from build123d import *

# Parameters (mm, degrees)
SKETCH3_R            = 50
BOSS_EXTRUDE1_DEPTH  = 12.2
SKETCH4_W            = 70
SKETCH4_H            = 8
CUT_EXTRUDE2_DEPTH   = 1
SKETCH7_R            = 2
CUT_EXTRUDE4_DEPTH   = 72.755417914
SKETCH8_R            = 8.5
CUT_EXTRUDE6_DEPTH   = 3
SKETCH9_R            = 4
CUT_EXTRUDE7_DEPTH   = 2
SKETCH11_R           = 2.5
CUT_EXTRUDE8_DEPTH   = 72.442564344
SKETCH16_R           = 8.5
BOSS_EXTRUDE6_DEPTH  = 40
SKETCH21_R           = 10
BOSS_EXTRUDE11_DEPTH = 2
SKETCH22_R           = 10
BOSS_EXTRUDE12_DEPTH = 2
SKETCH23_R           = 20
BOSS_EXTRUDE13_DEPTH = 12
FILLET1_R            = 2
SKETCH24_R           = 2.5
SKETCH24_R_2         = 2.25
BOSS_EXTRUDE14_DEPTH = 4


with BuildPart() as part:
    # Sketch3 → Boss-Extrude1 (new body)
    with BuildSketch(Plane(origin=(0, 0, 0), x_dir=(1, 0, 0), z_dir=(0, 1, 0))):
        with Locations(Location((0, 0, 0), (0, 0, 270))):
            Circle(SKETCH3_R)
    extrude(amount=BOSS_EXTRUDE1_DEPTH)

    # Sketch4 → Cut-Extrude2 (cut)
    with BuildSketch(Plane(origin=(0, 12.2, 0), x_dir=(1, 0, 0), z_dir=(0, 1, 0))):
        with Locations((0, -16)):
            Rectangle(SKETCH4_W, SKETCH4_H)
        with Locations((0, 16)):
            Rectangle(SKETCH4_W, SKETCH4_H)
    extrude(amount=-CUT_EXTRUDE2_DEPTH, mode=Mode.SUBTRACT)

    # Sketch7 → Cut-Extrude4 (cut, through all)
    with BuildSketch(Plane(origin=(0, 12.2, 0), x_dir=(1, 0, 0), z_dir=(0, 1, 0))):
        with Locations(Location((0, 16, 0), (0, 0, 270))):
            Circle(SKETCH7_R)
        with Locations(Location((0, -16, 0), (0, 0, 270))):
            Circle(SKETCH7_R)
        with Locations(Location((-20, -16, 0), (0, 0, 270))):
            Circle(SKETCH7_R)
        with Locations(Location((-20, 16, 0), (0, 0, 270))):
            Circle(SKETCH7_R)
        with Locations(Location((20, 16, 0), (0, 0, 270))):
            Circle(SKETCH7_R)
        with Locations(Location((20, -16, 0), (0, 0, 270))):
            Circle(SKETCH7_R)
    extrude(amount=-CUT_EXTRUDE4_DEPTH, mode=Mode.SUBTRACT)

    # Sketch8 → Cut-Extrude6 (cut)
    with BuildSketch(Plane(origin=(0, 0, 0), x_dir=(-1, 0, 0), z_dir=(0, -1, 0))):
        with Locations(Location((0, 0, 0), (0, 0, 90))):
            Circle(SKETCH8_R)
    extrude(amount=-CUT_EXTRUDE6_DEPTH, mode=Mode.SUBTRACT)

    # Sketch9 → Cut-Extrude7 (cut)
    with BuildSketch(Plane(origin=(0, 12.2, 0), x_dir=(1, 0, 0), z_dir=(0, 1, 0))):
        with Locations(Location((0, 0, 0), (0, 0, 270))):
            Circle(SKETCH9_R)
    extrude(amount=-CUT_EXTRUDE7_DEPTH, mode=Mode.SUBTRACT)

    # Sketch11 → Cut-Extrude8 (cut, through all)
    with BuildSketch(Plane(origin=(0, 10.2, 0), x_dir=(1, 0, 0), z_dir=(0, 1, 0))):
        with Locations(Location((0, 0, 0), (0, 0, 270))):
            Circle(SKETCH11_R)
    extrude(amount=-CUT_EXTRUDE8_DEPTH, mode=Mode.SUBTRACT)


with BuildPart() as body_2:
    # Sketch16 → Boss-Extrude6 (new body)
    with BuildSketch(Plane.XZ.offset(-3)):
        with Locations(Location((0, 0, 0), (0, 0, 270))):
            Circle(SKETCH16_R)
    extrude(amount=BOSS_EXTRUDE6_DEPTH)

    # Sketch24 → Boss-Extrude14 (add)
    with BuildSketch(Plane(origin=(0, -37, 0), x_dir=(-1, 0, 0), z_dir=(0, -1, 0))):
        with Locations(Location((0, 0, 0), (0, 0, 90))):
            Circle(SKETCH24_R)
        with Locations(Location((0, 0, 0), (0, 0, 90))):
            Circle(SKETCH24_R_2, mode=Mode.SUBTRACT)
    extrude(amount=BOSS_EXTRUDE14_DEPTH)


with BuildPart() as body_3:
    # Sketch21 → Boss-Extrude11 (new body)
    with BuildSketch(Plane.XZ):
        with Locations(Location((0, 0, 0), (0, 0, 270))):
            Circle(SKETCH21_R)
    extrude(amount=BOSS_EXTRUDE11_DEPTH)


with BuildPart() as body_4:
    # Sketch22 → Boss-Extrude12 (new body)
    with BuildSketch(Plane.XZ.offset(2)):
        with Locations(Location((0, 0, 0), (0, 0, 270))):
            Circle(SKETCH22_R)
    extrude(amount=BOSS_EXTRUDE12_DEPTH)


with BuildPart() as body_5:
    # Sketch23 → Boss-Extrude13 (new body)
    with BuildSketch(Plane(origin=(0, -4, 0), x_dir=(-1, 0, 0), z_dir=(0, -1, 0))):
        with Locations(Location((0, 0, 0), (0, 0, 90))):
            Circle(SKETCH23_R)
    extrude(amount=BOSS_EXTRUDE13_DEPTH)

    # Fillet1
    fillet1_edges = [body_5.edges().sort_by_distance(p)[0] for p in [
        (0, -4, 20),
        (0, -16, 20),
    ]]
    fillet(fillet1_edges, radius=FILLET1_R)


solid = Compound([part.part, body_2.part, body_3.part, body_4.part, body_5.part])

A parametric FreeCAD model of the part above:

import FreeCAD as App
import Part
import Sketcher


def edges_at(feature, points):
    """Names of the edges that pass closest to the given points."""
    edges = feature.Shape.Edges
    near = lambda p: min(range(len(edges)), key=lambda i: edges[i].distToShape(Part.Vertex(*p))[0])
    return sorted({f"Edge{near(p) + 1}" for p in points})

doc = App.newDocument("Part")
body = doc.addObject("PartDesign::Body", "Body")

sketch1 = body.newObject("Sketcher::SketchObject", "Sketch")
sketch1.AttachmentSupport = (doc.getObject("XZ_Plane"), [""])
sketch1.MapMode = "FlatFace"
sketch1.addGeometry(Part.Circle(App.Vector(0, 0, 0), App.Vector(0, 0, 1), 50), False)
sketch1.addConstraint(Sketcher.Constraint("Coincident", 0, 3, -1, 1))
sketch1.addConstraint(Sketcher.Constraint("Diameter", 0, 100.0))
pad1 = body.newObject("PartDesign::Pad", "Pad")
pad1.Profile = sketch1
pad1.Length = 12.2
pad1.Reversed = True

sketch2 = body.newObject("Sketcher::SketchObject", "Sketch001")
sketch2.AttachmentSupport = (doc.getObject("XZ_Plane"), [""])
sketch2.MapMode = "FlatFace"
sketch2.AttachmentOffset = App.Placement(App.Vector(0, 0, -12.2), App.Rotation())
sketch2.addGeometry(Part.LineSegment(App.Vector(-35, 12, 0), App.Vector(-35, 20, 0)), False)
sketch2.addGeometry(Part.LineSegment(App.Vector(-35, 20, 0), App.Vector(35, 20, 0)), False)
sketch2.addGeometry(Part.LineSegment(App.Vector(35, 20, 0), App.Vector(35, 12, 0)), False)
sketch2.addGeometry(Part.LineSegment(App.Vector(35, 12, 0), App.Vector(-35, 12, 0)), False)
sketch2.addGeometry(Part.LineSegment(App.Vector(-35, -20, 0), App.Vector(-35, -12, 0)), False)
sketch2.addGeometry(Part.LineSegment(App.Vector(-35, -12, 0), App.Vector(35, -12, 0)), False)
sketch2.addGeometry(Part.LineSegment(App.Vector(35, -12, 0), App.Vector(35, -20, 0)), False)
sketch2.addGeometry(Part.LineSegment(App.Vector(35, -20, 0), App.Vector(-35, -20, 0)), False)
sketch2.addConstraint(Sketcher.Constraint("Coincident", 0, 2, 1, 1))
sketch2.addConstraint(Sketcher.Constraint("Coincident", 1, 2, 2, 1))
sketch2.addConstraint(Sketcher.Constraint("Coincident", 2, 2, 3, 1))
sketch2.addConstraint(Sketcher.Constraint("Coincident", 3, 2, 0, 1))
sketch2.addConstraint(Sketcher.Constraint("Coincident", 4, 2, 5, 1))
sketch2.addConstraint(Sketcher.Constraint("Coincident", 5, 2, 6, 1))
sketch2.addConstraint(Sketcher.Constraint("Coincident", 6, 2, 7, 1))
sketch2.addConstraint(Sketcher.Constraint("Coincident", 7, 2, 4, 1))
sketch2.addConstraint(Sketcher.Constraint("Vertical", 0))
sketch2.addConstraint(Sketcher.Constraint("Horizontal", 1))
sketch2.addConstraint(Sketcher.Constraint("Vertical", 2))
sketch2.addConstraint(Sketcher.Constraint("Horizontal", 3))
sketch2.addConstraint(Sketcher.Constraint("Vertical", 4))
sketch2.addConstraint(Sketcher.Constraint("Horizontal", 5))
sketch2.addConstraint(Sketcher.Constraint("Vertical", 6))
sketch2.addConstraint(Sketcher.Constraint("Horizontal", 7))
sketch2.addConstraint(Sketcher.Constraint("Symmetric", 2, 2, 4, 2, -1, 1))
sketch2.addConstraint(Sketcher.Constraint("Symmetric", 0, 2, 6, 2, -1, 1))
sketch2.addConstraint(Sketcher.Constraint("Vertical", 3, 2, 4, 2))
sketch2.addConstraint(Sketcher.Constraint("DistanceX", 1, 1, 1, 2, 70.0))
sketch2.addConstraint(Sketcher.Constraint("DistanceY", 0, 1, 0, 2, 8.0))
sketch2.addConstraint(Sketcher.Constraint("DistanceY", -1, 1, 0, 2, 20.0))
pocket1 = body.newObject("PartDesign::Pocket", "Pocket")
pocket1.Profile = sketch2
pocket1.Length = 1
pocket1.Reversed = True

sketch3 = body.newObject("Sketcher::SketchObject", "Sketch002")
sketch3.AttachmentSupport = (doc.getObject("XZ_Plane"), [""])
sketch3.MapMode = "FlatFace"
sketch3.AttachmentOffset = App.Placement(App.Vector(0, 0, -12.2), App.Rotation())
sketch3.addGeometry(Part.Circle(App.Vector(0, -16, 0), App.Vector(0, 0, 1), 2), False)
sketch3.addGeometry(Part.Circle(App.Vector(0, 16, 0), App.Vector(0, 0, 1), 2), False)
sketch3.addGeometry(Part.Circle(App.Vector(-20, 16, 0), App.Vector(0, 0, 1), 2), False)
sketch3.addGeometry(Part.Circle(App.Vector(-20, -16, 0), App.Vector(0, 0, 1), 2), False)
sketch3.addGeometry(Part.Circle(App.Vector(20, -16, 0), App.Vector(0, 0, 1), 2), False)
sketch3.addGeometry(Part.Circle(App.Vector(20, 16, 0), App.Vector(0, 0, 1), 2), False)
sketch3.addConstraint(Sketcher.Constraint("Equal", 0, 1))
sketch3.addConstraint(Sketcher.Constraint("Equal", 1, 2))
sketch3.addConstraint(Sketcher.Constraint("Equal", 2, 3))
sketch3.addConstraint(Sketcher.Constraint("Equal", 3, 4))
sketch3.addConstraint(Sketcher.Constraint("Equal", 4, 5))
sketch3.addConstraint(Sketcher.Constraint("Symmetric", 0, 3, 1, 3, -1, 1))
sketch3.addConstraint(Sketcher.Constraint("Symmetric", 2, 3, 4, 3, -1, 1))
sketch3.addConstraint(Sketcher.Constraint("Symmetric", 3, 3, 5, 3, -1, 1))
sketch3.addConstraint(Sketcher.Constraint("Symmetric", 3, 3, 4, 3, -2))
sketch3.addConstraint(Sketcher.Constraint("PointOnObject", 0, 3, -2))
sketch3.addConstraint(Sketcher.Constraint("Horizontal", 1, 3, 2, 3))
sketch3.addConstraint(Sketcher.Constraint("Diameter", 0, 4.0))
sketch3.addConstraint(Sketcher.Constraint("DistanceY", 0, 3, -1, 1, 16.0))
sketch3.addConstraint(Sketcher.Constraint("DistanceX", 2, 3, -1, 1, 20.0))
pocket2 = body.newObject("PartDesign::Pocket", "Pocket001")
pocket2.Profile = sketch3
pocket2.Type = "ThroughAll"
pocket2.Reversed = True

sketch4 = body.newObject("Sketcher::SketchObject", "Sketch003")
sketch4.AttachmentSupport = (doc.getObject("XZ_Plane"), [""])
sketch4.MapMode = "FlatFace"
sketch4.addGeometry(Part.Circle(App.Vector(0, 0, 0), App.Vector(0, 0, 1), 8.5), False)
sketch4.addConstraint(Sketcher.Constraint("Coincident", 0, 3, -1, 1))
sketch4.addConstraint(Sketcher.Constraint("Diameter", 0, 17.0))
pocket3 = body.newObject("PartDesign::Pocket", "Pocket002")
pocket3.Profile = sketch4
pocket3.Length = 3

sketch5 = body.newObject("Sketcher::SketchObject", "Sketch004")
sketch5.AttachmentSupport = (doc.getObject("XZ_Plane"), [""])
sketch5.MapMode = "FlatFace"
sketch5.AttachmentOffset = App.Placement(App.Vector(0, 0, -12.2), App.Rotation())
sketch5.addGeometry(Part.Circle(App.Vector(0, 0, 0), App.Vector(0, 0, 1), 4), False)
sketch5.addConstraint(Sketcher.Constraint("Coincident", 0, 3, -1, 1))
sketch5.addConstraint(Sketcher.Constraint("Diameter", 0, 8.0))
pocket4 = body.newObject("PartDesign::Pocket", "Pocket003")
pocket4.Profile = sketch5
pocket4.Length = 2
pocket4.Reversed = True

sketch6 = body.newObject("Sketcher::SketchObject", "Sketch005")
sketch6.AttachmentSupport = (doc.getObject("XZ_Plane"), [""])
sketch6.MapMode = "FlatFace"
sketch6.AttachmentOffset = App.Placement(App.Vector(0, 0, -10.2), App.Rotation())
sketch6.addGeometry(Part.Circle(App.Vector(0, 0, 0), App.Vector(0, 0, 1), 2.5), False)
sketch6.addConstraint(Sketcher.Constraint("Coincident", 0, 3, -1, 1))
sketch6.addConstraint(Sketcher.Constraint("Diameter", 0, 5.0))
pocket5 = body.newObject("PartDesign::Pocket", "Pocket004")
pocket5.Profile = sketch6
pocket5.Type = "ThroughAll"
pocket5.Reversed = True
body2 = doc.addObject("PartDesign::Body", "Body001")

sketch7 = body2.newObject("Sketcher::SketchObject", "Sketch006")
sketch7.AttachmentSupport = (doc.getObject("XZ_Plane001"), [""])
sketch7.MapMode = "FlatFace"
sketch7.AttachmentOffset = App.Placement(App.Vector(0, 0, -3), App.Rotation())
sketch7.addGeometry(Part.Circle(App.Vector(0, 0, 0), App.Vector(0, 0, 1), 8.5), False)
sketch7.addConstraint(Sketcher.Constraint("Coincident", 0, 3, -1, 1))
sketch7.addConstraint(Sketcher.Constraint("Diameter", 0, 17.0))
pad2 = body2.newObject("PartDesign::Pad", "Pad001")
pad2.Profile = sketch7
pad2.Length = 40

sketch8 = body2.newObject("Sketcher::SketchObject", "Sketch007")
sketch8.AttachmentSupport = (doc.getObject("XZ_Plane001"), [""])
sketch8.MapMode = "FlatFace"
sketch8.AttachmentOffset = App.Placement(App.Vector(0, 0, 37), App.Rotation())
sketch8.addGeometry(Part.Circle(App.Vector(0, 0, 0), App.Vector(0, 0, 1), 2.5), False)
sketch8.addGeometry(Part.Circle(App.Vector(0, 0, 0), App.Vector(0, 0, 1), 2.25), False)
sketch8.addConstraint(Sketcher.Constraint("Coincident", 0, 3, -1, 1))
sketch8.addConstraint(Sketcher.Constraint("Coincident", 1, 3, -1, 1))
sketch8.addConstraint(Sketcher.Constraint("Diameter", 0, 5.0))
sketch8.addConstraint(Sketcher.Constraint("Diameter", 1, 4.5))
pad3 = body2.newObject("PartDesign::Pad", "Pad002")
pad3.Profile = sketch8
pad3.Length = 4
body3 = doc.addObject("PartDesign::Body", "Body002")

sketch9 = body3.newObject("Sketcher::SketchObject", "Sketch008")
sketch9.AttachmentSupport = (doc.getObject("XZ_Plane002"), [""])
sketch9.MapMode = "FlatFace"
sketch9.addGeometry(Part.Circle(App.Vector(0, 0, 0), App.Vector(0, 0, 1), 10), False)
sketch9.addConstraint(Sketcher.Constraint("Coincident", 0, 3, -1, 1))
sketch9.addConstraint(Sketcher.Constraint("Diameter", 0, 20.0))
pad4 = body3.newObject("PartDesign::Pad", "Pad003")
pad4.Profile = sketch9
pad4.Length = 2
body4 = doc.addObject("PartDesign::Body", "Body003")

sketch10 = body4.newObject("Sketcher::SketchObject", "Sketch009")
sketch10.AttachmentSupport = (doc.getObject("XZ_Plane003"), [""])
sketch10.MapMode = "FlatFace"
sketch10.AttachmentOffset = App.Placement(App.Vector(0, 0, 2), App.Rotation())
sketch10.addGeometry(Part.Circle(App.Vector(0, 0, 0), App.Vector(0, 0, 1), 10), False)
sketch10.addConstraint(Sketcher.Constraint("Coincident", 0, 3, -1, 1))
sketch10.addConstraint(Sketcher.Constraint("Diameter", 0, 20.0))
pad5 = body4.newObject("PartDesign::Pad", "Pad004")
pad5.Profile = sketch10
pad5.Length = 2
body5 = doc.addObject("PartDesign::Body", "Body004")

sketch11 = body5.newObject("Sketcher::SketchObject", "Sketch010")
sketch11.AttachmentSupport = (doc.getObject("XZ_Plane004"), [""])
sketch11.MapMode = "FlatFace"
sketch11.AttachmentOffset = App.Placement(App.Vector(0, 0, 4), App.Rotation())
sketch11.addGeometry(Part.Circle(App.Vector(0, 0, 0), App.Vector(0, 0, 1), 20), False)
sketch11.addConstraint(Sketcher.Constraint("Coincident", 0, 3, -1, 1))
sketch11.addConstraint(Sketcher.Constraint("Diameter", 0, 40.0))
pad6 = body5.newObject("PartDesign::Pad", "Pad005")
pad6.Profile = sketch11
pad6.Length = 12
doc.recompute()

fillet = body5.newObject("PartDesign::Fillet", "Fillet")
fillet.Base = (pad6, edges_at(pad6, [(0, -4, 20), (0, -16, 20)]))
fillet.Radius = 2

doc.recompute()
